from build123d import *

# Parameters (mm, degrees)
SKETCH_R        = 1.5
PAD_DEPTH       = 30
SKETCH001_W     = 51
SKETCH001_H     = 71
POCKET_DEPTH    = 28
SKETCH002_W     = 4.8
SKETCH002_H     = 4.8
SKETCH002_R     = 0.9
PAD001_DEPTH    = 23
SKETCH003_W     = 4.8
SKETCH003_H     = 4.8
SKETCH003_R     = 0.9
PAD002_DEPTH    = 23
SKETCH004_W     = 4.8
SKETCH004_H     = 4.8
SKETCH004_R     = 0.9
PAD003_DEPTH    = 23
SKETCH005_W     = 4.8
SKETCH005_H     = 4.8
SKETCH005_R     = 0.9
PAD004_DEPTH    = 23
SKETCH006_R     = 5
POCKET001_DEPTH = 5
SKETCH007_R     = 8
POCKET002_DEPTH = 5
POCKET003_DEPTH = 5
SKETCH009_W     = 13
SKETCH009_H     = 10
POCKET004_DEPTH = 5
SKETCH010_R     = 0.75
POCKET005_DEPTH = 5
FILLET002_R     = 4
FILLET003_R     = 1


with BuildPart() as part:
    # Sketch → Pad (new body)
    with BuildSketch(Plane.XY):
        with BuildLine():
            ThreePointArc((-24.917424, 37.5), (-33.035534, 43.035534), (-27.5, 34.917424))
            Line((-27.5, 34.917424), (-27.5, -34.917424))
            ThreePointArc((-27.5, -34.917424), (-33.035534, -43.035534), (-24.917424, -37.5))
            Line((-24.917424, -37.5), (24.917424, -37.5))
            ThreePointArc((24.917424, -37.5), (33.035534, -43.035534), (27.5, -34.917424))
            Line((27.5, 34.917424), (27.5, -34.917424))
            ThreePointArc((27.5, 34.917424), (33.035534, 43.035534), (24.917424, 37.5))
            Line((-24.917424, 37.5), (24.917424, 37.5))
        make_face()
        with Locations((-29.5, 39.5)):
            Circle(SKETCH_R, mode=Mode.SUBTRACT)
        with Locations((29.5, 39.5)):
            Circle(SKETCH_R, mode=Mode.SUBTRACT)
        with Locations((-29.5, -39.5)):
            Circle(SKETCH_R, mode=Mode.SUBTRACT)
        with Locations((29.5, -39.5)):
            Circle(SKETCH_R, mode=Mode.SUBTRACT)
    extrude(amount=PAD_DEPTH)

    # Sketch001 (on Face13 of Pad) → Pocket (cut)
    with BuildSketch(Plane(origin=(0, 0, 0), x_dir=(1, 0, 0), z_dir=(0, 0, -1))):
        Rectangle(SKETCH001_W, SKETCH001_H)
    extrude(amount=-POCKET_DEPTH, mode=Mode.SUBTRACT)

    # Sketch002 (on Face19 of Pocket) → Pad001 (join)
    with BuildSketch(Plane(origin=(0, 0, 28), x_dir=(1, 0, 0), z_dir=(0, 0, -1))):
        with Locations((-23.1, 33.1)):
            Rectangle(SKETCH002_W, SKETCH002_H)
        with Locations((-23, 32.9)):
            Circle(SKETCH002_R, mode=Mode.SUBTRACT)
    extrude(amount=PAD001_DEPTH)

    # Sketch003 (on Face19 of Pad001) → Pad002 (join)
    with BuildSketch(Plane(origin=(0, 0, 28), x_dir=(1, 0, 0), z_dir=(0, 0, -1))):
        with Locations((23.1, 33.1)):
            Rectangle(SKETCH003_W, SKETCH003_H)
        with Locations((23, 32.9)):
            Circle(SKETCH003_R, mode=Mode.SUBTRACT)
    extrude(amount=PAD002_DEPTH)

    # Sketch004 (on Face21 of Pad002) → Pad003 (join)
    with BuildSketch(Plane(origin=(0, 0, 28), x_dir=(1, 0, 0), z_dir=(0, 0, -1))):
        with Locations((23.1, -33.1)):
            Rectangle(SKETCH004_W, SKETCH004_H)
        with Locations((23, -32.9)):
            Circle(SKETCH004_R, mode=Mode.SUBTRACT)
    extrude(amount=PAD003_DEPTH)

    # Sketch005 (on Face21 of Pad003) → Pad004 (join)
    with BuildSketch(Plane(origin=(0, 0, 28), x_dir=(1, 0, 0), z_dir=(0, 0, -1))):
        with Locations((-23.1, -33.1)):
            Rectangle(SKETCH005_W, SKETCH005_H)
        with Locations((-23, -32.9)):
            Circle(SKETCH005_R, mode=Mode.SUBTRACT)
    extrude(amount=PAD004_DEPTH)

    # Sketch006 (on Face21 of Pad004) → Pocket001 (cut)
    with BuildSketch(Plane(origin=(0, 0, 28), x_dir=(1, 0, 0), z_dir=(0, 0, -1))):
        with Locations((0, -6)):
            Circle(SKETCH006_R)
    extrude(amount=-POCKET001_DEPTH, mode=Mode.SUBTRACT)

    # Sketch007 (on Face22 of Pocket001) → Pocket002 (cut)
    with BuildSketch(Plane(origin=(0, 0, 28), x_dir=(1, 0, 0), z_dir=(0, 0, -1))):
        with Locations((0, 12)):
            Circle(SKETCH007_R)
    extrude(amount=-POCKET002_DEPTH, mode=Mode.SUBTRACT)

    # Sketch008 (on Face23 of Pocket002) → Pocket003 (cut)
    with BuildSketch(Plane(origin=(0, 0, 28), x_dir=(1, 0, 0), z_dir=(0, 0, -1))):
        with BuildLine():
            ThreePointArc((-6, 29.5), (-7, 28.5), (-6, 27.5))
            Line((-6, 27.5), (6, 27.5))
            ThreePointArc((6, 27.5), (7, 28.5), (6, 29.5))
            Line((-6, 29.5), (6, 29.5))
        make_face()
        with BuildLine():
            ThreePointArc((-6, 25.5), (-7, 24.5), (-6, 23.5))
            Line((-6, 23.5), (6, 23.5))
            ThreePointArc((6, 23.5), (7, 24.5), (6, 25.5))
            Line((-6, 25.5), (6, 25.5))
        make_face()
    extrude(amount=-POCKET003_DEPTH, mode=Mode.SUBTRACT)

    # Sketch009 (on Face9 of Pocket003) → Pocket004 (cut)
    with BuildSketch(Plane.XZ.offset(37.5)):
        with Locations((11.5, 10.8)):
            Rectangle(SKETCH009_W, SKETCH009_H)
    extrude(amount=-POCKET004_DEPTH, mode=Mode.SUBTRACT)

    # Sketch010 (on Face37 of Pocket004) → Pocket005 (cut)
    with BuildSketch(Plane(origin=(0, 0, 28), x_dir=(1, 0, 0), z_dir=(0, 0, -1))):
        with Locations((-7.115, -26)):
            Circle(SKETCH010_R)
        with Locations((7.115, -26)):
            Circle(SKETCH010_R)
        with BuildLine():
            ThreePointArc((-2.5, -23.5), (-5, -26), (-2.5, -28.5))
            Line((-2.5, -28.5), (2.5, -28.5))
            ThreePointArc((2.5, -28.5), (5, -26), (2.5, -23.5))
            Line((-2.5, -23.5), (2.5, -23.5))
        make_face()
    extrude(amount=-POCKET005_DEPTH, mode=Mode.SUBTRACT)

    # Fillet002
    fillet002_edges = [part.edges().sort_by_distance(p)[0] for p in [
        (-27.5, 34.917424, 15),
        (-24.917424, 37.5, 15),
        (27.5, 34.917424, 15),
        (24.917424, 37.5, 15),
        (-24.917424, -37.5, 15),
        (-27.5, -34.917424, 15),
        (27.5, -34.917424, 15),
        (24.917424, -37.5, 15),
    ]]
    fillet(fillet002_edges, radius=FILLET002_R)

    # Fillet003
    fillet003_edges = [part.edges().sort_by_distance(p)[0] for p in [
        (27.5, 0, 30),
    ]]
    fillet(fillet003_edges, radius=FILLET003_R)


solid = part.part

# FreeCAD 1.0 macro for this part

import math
import FreeCAD as App
import Part
import Sketcher
from FreeCAD import Vector


def edges_at(feature, points):
    """Names of the edges that pass closest to the given points."""
    edges = feature.Shape.Edges
    near = lambda p: min(range(len(edges)), key=lambda i: edges[i].distToShape(Part.Vertex(*p))[0])
    return sorted({f"Edge{near(p) + 1}" for p in points})

doc = App.newDocument("Part")
params = doc.addObject("Spreadsheet::Sheet", "Params")
for row, (alias, value) in enumerate([
    ("sketch1_diameter", "3 mm"),
    ("sketch1_radius", "5 mm"),
    ("sketch1_width", "2 mm"),
    ("sketch1_height", "2 mm"),
    ("pad1_length", "30 mm"),
    ("sketch2_width", "51 mm"),
    ("sketch2_height", "71 mm"),
    ("pocket1_length", "28 mm"),
    ("sketch3_diameter", "1.8 mm"),
    ("sketch3_width", "4.8 mm"),
    ("pad2_length", "23 mm"),
    ("sketch4_diameter", "1.8 mm"),
    ("sketch4_width", "4.8 mm"),
    ("pad3_length", "23 mm"),
    ("sketch5_diameter", "1.8 mm"),
    ("sketch5_width", "4.8 mm"),
    ("pad4_length", "23 mm"),
    ("sketch6_diameter", "1.8 mm"),
    ("sketch6_width", "4.8 mm"),
    ("pad5_length", "23 mm"),
    ("sketch7_diameter", "10 mm"),
    ("pocket2_length", "5 mm"),
    ("sketch8_diameter", "16 mm"),
    ("pocket3_length", "5 mm"),
    ("sketch9_radius", "1 mm"),
    ("sketch9_width", "12 mm"),
    ("pocket4_length", "5 mm"),
    ("sketch10_width", "13 mm"),
    ("sketch10_height", "10 mm"),
    ("pocket5_length", "5 mm"),
    ("sketch11_diameter", "1.5 mm"),
    ("sketch11_radius", "2.5 mm"),
    ("sketch11_width", "5 mm"),
    ("pocket6_length", "5 mm"),
    ("fillet_radius", "4 mm"),
    ("fillet2_radius", "1 mm"),
], start=1):
    params.set(f"A{row}", alias)
    params.set(f"B{row}", "=" + value)
    params.setAlias(f"B{row}", alias)

body = doc.addObject("PartDesign::Body", "Body")

sketch1 = body.newObject("Sketcher::SketchObject", "Sketch")
sketch1.AttachmentSupport = (doc.getObject("XY_Plane"), [""])
sketch1.MapMode = "FlatFace"
sketch1.addGeometry([
    Part.ArcOfCircle(Part.Circle(Vector(-29.5, 39.5, 0), Vector(0, 0, 1), 5), math.radians(-23.578177), math.radians(293.578177)),
    Part.LineSegment(Vector(-27.5, 34.917424, 0), Vector(-27.5, -34.917424, 0)),
    Part.ArcOfCircle(Part.Circle(Vector(-29.5, -39.5, 0), Vector(0, 0, 1), 5), math.radians(66.421823), math.radians(383.578177)),
    Part.LineSegment(Vector(-24.917424, -37.5, 0), Vector(24.917424, -37.5, 0)),
    Part.ArcOfCircle(Part.Circle(Vector(29.5, -39.5, 0), Vector(0, 0, 1), 5), math.radians(156.421823), math.radians(473.578177)),
    Part.LineSegment(Vector(27.5, -34.917424, 0), Vector(27.5, 34.917424, 0)),
    Part.ArcOfCircle(Part.Circle(Vector(29.5, 39.5, 0), Vector(0, 0, 1), 5), math.radians(-113.578177), math.radians(203.578177)),
    Part.LineSegment(Vector(24.917424, 37.5, 0), Vector(-24.917424, 37.5, 0)),
    Part.Circle(Vector(-29.5, -39.5, 0), Vector(0, 0, 1), 1.5),
    Part.Circle(Vector(29.5, -39.5, 0), Vector(0, 0, 1), 1.5),
    Part.Circle(Vector(-29.5, 39.5, 0), Vector(0, 0, 1), 1.5),
    Part.Circle(Vector(29.5, 39.5, 0), Vector(0, 0, 1), 1.5),
], False)
sketch1.addConstraint([
    Sketcher.Constraint("Coincident", 0, 2, 1, 1),
    Sketcher.Constraint("Coincident", 1, 2, 2, 1),
    Sketcher.Constraint("Coincident", 2, 2, 3, 1),
    Sketcher.Constraint("Coincident", 3, 2, 4, 1),
    Sketcher.Constraint("Coincident", 4, 2, 5, 1),
    Sketcher.Constraint("Coincident", 5, 2, 6, 1),
    Sketcher.Constraint("Coincident", 6, 2, 7, 1),
    Sketcher.Constraint("Coincident", 7, 2, 0, 1),
    Sketcher.Constraint("Vertical", 1),
    Sketcher.Constraint("Horizontal", 3),
    Sketcher.Constraint("Vertical", 5),
    Sketcher.Constraint("Horizontal", 7),
    Sketcher.Constraint("Coincident", 8, 3, 2, 3),
    Sketcher.Constraint("Coincident", 9, 3, 4, 3),
    Sketcher.Constraint("Coincident", 10, 3, 0, 3),
    Sketcher.Constraint("Coincident", 11, 3, 6, 3),
    Sketcher.Constraint("Equal", 0, 2),
    Sketcher.Constraint("Equal", 2, 4),
    Sketcher.Constraint("Equal", 4, 6),
    Sketcher.Constraint("Equal", 8, 9),
    Sketcher.Constraint("Equal", 9, 10),
    Sketcher.Constraint("Equal", 10, 11),
    Sketcher.Constraint("Symmetric", 0, 3, 4, 3, -1, 1),
    Sketcher.Constraint("Symmetric", 2, 3, 6, 3, -1, 1),
    Sketcher.Constraint("Symmetric", 2, 3, 4, 3, -2),
    Sketcher.Constraint("Horizontal", 1, 2, 4, 2),
    Sketcher.Constraint("Vertical", 3, 2, 6, 2),
    Sketcher.Constraint("Diameter", 8, 3.0),
    Sketcher.Constraint("Radius", 0, 5.0),
    Sketcher.Constraint("DistanceY", 2, 3, 0, 3, 79.0),
    Sketcher.Constraint("DistanceX", 2, 3, 4, 3, 59.0),
    Sketcher.Constraint("DistanceX", 0, 3, 0, 2, 2.0),
    Sketcher.Constraint("DistanceY", 2, 3, 2, 2, 2.0),
])
sketch1.setExpression("Constraints[27]", "Params.sketch1_diameter")
sketch1.setExpression("Constraints[28]", "Params.sketch1_radius")
sketch1.setExpression("Constraints[31]", "Params.sketch1_width")
sketch1.setExpression("Constraints[32]", "Params.sketch1_height")
pad1 = body.newObject("PartDesign::Pad", "Pad")
pad1.Profile = sketch1
pad1.setExpression("Length", "Params.pad1_length")

sketch2 = body.newObject("Sketcher::SketchObject", "Sketch001")
sketch2.AttachmentSupport = (doc.getObject("XY_Plane"), [""])
sketch2.MapMode = "FlatFace"
sketch2.addGeometry([
    Part.LineSegment(Vector(-25.5, -35.5, 0), Vector(-25.5, 35.5, 0)),
    Part.LineSegment(Vector(-25.5, 35.5, 0), Vector(25.5, 35.5, 0)),
    Part.LineSegment(Vector(25.5, 35.5, 0), Vector(25.5, -35.5, 0)),
    Part.LineSegment(Vector(25.5, -35.5, 0), Vector(-25.5, -35.5, 0)),
], False)
sketch2.addConstraint([
    Sketcher.Constraint("Coincident", 0, 2, 1, 1),
    Sketcher.Constraint("Coincident", 1, 2, 2, 1),
    Sketcher.Constraint("Coincident", 2, 2, 3, 1),
    Sketcher.Constraint("Coincident", 3, 2, 0, 1),
    Sketcher.Constraint("Vertical", 0),
    Sketcher.Constraint("Horizontal", 1),
    Sketcher.Constraint("Vertical", 2),
    Sketcher.Constraint("Horizontal", 3),
    Sketcher.Constraint("Symmetric", 0, 2, 2, 2, -1, 1),
    Sketcher.Constraint("DistanceX", 1, 1, 1, 2, 51.0),
    Sketcher.Constraint("DistanceY", 0, 1, 0, 2, 71.0),
])
sketch2.setExpression("Constraints[9]", "Params.sketch2_width")
sketch2.setExpression("Constraints[10]", "Params.sketch2_height")
pocket1 = body.newObject("PartDesign::Pocket", "Pocket")
pocket1.Profile = sketch2
pocket1.setExpression("Length", "Params.pocket1_length")
pocket1.Reversed = True

sketch3 = body.newObject("Sketcher::SketchObject", "Sketch002")
sketch3.AttachmentSupport = (doc.getObject("XY_Plane"), [""])
sketch3.MapMode = "FlatFace"
sketch3.AttachmentOffset = App.Placement(Vector(0, 0, 28), App.Rotation())
sketch3.addGeometry([
    Part.LineSegment(Vector(-25.5, -35.5, 0), Vector(-25.5, -30.7, 0)),
    Part.LineSegment(Vector(-25.5, -30.7, 0), Vector(-20.7, -30.7, 0)),
    Part.LineSegment(Vector(-20.7, -30.7, 0), Vector(-20.7, -35.5, 0)),
    Part.LineSegment(Vector(-20.7, -35.5, 0), Vector(-25.5, -35.5, 0)),
    Part.Circle(Vector(-23, -32.9, 0), Vector(0, 0, 1), 0.9),
], False)
sketch3.addConstraint([
    Sketcher.Constraint("Coincident", 0, 2, 1, 1),
    Sketcher.Constraint("Coincident", 1, 2, 2, 1),
    Sketcher.Constraint("Coincident", 2, 2, 3, 1),
    Sketcher.Constraint("Coincident", 3, 2, 0, 1),
    Sketcher.Constraint("Vertical", 0),
    Sketcher.Constraint("Horizontal", 1),
    Sketcher.Constraint("Vertical", 2),
    Sketcher.Constraint("Horizontal", 3),
    Sketcher.Constraint("Equal", 3, 0),
    Sketcher.Constraint("Diameter", 4, 1.8),
    Sketcher.Constraint("DistanceX", 1, 1, 1, 2, 4.8),
    Sketcher.Constraint("DistanceX", 4, 3, -1, 1, 23.0),
    Sketcher.Constraint("DistanceY", 4, 3, -1, 1, 32.9),
    Sketcher.Constraint("DistanceX", 0, 2, -1, 1, 25.5),
    Sketcher.Constraint("DistanceY", 0, 2, -1, 1, 30.7),
])
sketch3.setExpression("Constraints[9]", "Params.sketch3_diameter")
sketch3.setExpression("Constraints[10]", "Params.sketch3_width")
pad2 = body.newObject("PartDesign::Pad", "Pad001")
pad2.Profile = sketch3
pad2.setExpression("Length", "Params.pad2_length")
pad2.Reversed = True

sketch4 = body.newObject("Sketcher::SketchObject", "Sketch003")
sketch4.AttachmentSupport = (doc.getObject("XY_Plane"), [""])
sketch4.MapMode = "FlatFace"
sketch4.AttachmentOffset = App.Placement(Vector(0, 0, 28), App.Rotation())
sketch4.addGeometry([
    Part.LineSegment(Vector(20.7, -35.5, 0), Vector(20.7, -30.7, 0)),
    Part.LineSegment(Vector(20.7, -30.7, 0), Vector(25.5, -30.7, 0)),
    Part.LineSegment(Vector(25.5, -30.7, 0), Vector(25.5, -35.5, 0)),
    Part.LineSegment(Vector(25.5, -35.5, 0), Vector(20.7, -35.5, 0)),
    Part.Circle(Vector(23, -32.9, 0), Vector(0, 0, 1), 0.9),
], False)
sketch4.addConstraint([
    Sketcher.Constraint("Coincident", 0, 2, 1, 1),
    Sketcher.Constraint("Coincident", 1, 2, 2, 1),
    Sketcher.Constraint("Coincident", 2, 2, 3, 1),
    Sketcher.Constraint("Coincident", 3, 2, 0, 1),
    Sketcher.Constraint("Vertical", 0),
    Sketcher.Constraint("Horizontal", 1),
    Sketcher.Constraint("Vertical", 2),
    Sketcher.Constraint("Horizontal", 3),
    Sketcher.Constraint("Equal", 3, 0),
    Sketcher.Constraint("Diameter", 4, 1.8),
    Sketcher.Constraint("DistanceX", 1, 1, 1, 2, 4.8),
    Sketcher.Constraint("DistanceX", -1, 1, 4, 3, 23.0),
    Sketcher.Constraint("DistanceY", 4, 3, -1, 1, 32.9),
    Sketcher.Constraint("DistanceX", -1, 1, 0, 2, 20.7),
    Sketcher.Constraint("DistanceY", 0, 2, -1, 1, 30.7),
])
sketch4.setExpression("Constraints[9]", "Params.sketch4_diameter")
sketch4.setExpression("Constraints[10]", "Params.sketch4_width")
pad3 = body.newObject("PartDesign::Pad", "Pad002")
pad3.Profile = sketch4
pad3.setExpression("Length", "Params.pad3_length")
pad3.Reversed = True

sketch5 = body.newObject("Sketcher::SketchObject", "Sketch004")
sketch5.AttachmentSupport = (doc.getObject("XY_Plane"), [""])
sketch5.MapMode = "FlatFace"
sketch5.AttachmentOffset = App.Placement(Vector(0, 0, 28), App.Rotation())
sketch5.addGeometry([
    Part.LineSegment(Vector(20.7, 30.7, 0), Vector(20.7, 35.5, 0)),
    Part.LineSegment(Vector(20.7, 35.5, 0), Vector(25.5, 35.5, 0)),
    Part.LineSegment(Vector(25.5, 35.5, 0), Vector(25.5, 30.7, 0)),
    Part.LineSegment(Vector(25.5, 30.7, 0), Vector(20.7, 30.7, 0)),
    Part.Circle(Vector(23, 32.9, 0), Vector(0, 0, 1), 0.9),
], False)
sketch5.addConstraint([
    Sketcher.Constraint("Coincident", 0, 2, 1, 1),
    Sketcher.Constraint("Coincident", 1, 2, 2, 1),
    Sketcher.Constraint("Coincident", 2, 2, 3, 1),
    Sketcher.Constraint("Coincident", 3, 2, 0, 1),
    Sketcher.Constraint("Vertical", 0),
    Sketcher.Constraint("Horizontal", 1),
    Sketcher.Constraint("Vertical", 2),
    Sketcher.Constraint("Horizontal", 3),
    Sketcher.Constraint("Equal", 3, 0),
    Sketcher.Constraint("Diameter", 4, 1.8),
    Sketcher.Constraint("DistanceX", 1, 1, 1, 2, 4.8),
    Sketcher.Constraint("DistanceX", -1, 1, 4, 3, 23.0),
    Sketcher.Constraint("DistanceY", -1, 1, 4, 3, 32.9),
    Sketcher.Constraint("DistanceX", -1, 1, 0, 2, 20.7),
    Sketcher.Constraint("DistanceY", -1, 1, 0, 2, 35.5),
])
sketch5.setExpression("Constraints[9]", "Params.sketch5_diameter")
sketch5.setExpression("Constraints[10]", "Params.sketch5_width")
pad4 = body.newObject("PartDesign::Pad", "Pad003")
pad4.Profile = sketch5
pad4.setExpression("Length", "Params.pad4_length")
pad4.Reversed = True

sketch6 = body.newObject("Sketcher::SketchObject", "Sketch005")
sketch6.AttachmentSupport = (doc.getObject("XY_Plane"), [""])
sketch6.MapMode = "FlatFace"
sketch6.AttachmentOffset = App.Placement(Vector(0, 0, 28), App.Rotation())
sketch6.addGeometry([
    Part.LineSegment(Vector(-25.5, 30.7, 0), Vector(-25.5, 35.5, 0)),
    Part.LineSegment(Vector(-25.5, 35.5, 0), Vector(-20.7, 35.5, 0)),
    Part.LineSegment(Vector(-20.7, 35.5, 0), Vector(-20.7, 30.7, 0)),
    Part.LineSegment(Vector(-20.7, 30.7, 0), Vector(-25.5, 30.7, 0)),
    Part.Circle(Vector(-23, 32.9, 0), Vector(0, 0, 1), 0.9),
], False)
sketch6.addConstraint([
    Sketcher.Constraint("Coincident", 0, 2, 1, 1),
    Sketcher.Constraint("Coincident", 1, 2, 2, 1),
    Sketcher.Constraint("Coincident", 2, 2, 3, 1),
    Sketcher.Constraint("Coincident", 3, 2, 0, 1),
    Sketcher.Constraint("Vertical", 0),
    Sketcher.Constraint("Horizontal", 1),
    Sketcher.Constraint("Vertical", 2),
    Sketcher.Constraint("Horizontal", 3),
    Sketcher.Constraint("Equal", 3, 0),
    Sketcher.Constraint("Diameter", 4, 1.8),
    Sketcher.Constraint("DistanceX", 1, 1, 1, 2, 4.8),
    Sketcher.Constraint("DistanceX", 4, 3, -1, 1, 23.0),
    Sketcher.Constraint("DistanceY", -1, 1, 4, 3, 32.9),
    Sketcher.Constraint("DistanceX", 0, 2, -1, 1, 25.5),
    Sketcher.Constraint("DistanceY", -1, 1, 0, 2, 35.5),
])
sketch6.setExpression("Constraints[9]", "Params.sketch6_diameter")
sketch6.setExpression("Constraints[10]", "Params.sketch6_width")
pad5 = body.newObject("PartDesign::Pad", "Pad004")
pad5.Profile = sketch6
pad5.setExpression("Length", "Params.pad5_length")
pad5.Reversed = True

sketch7 = body.newObject("Sketcher::SketchObject", "Sketch006")
sketch7.AttachmentSupport = (doc.getObject("XY_Plane"), [""])
sketch7.MapMode = "FlatFace"
sketch7.AttachmentOffset = App.Placement(Vector(0, 0, 28), App.Rotation())
sketch7.addGeometry(Part.Circle(Vector(0, 6, 0), Vector(0, 0, 1), 5), False)
sketch7.addConstraint([
    Sketcher.Constraint("PointOnObject", 0, 3, -2),
    Sketcher.Constraint("Diameter", 0, 10.0),
    Sketcher.Constraint("DistanceY", -1, 1, 0, 3, 6.0),
])
sketch7.setExpression("Constraints[1]", "Params.sketch7_diameter")
pocket2 = body.newObject("PartDesign::Pocket", "Pocket001")
pocket2.Profile = sketch7
pocket2.setExpression("Length", "Params.pocket2_length")
pocket2.Reversed = True

sketch8 = body.newObject("Sketcher::SketchObject", "Sketch007")
sketch8.AttachmentSupport = (doc.getObject("XY_Plane"), [""])
sketch8.MapMode = "FlatFace"
sketch8.AttachmentOffset = App.Placement(Vector(0, 0, 28), App.Rotation())
sketch8.addGeometry(Part.Circle(Vector(0, -12, 0), Vector(0, 0, 1), 8), False)
sketch8.addConstraint([
    Sketcher.Constraint("PointOnObject", 0, 3, -2),
    Sketcher.Constraint("Diameter", 0, 16.0),
    Sketcher.Constraint("DistanceY", 0, 3, -1, 1, 12.0),
])
sketch8.setExpression("Constraints[1]", "Params.sketch8_diameter")
pocket3 = body.newObject("PartDesign::Pocket", "Pocket002")
pocket3.Profile = sketch8
pocket3.setExpression("Length", "Params.pocket3_length")
pocket3.Reversed = True

sketch9 = body.newObject("Sketcher::SketchObject", "Sketch008")
sketch9.AttachmentSupport = (doc.getObject("XY_Plane"), [""])
sketch9.MapMode = "FlatFace"
sketch9.AttachmentOffset = App.Placement(Vector(0, 0, 28), App.Rotation())
sketch9.addGeometry([
    Part.ArcOfCircle(Part.Circle(Vector(-6, -28.5, 0), Vector(0, 0, 1), 1), math.radians(90), math.radians(270)),
    Part.LineSegment(Vector(-6, -27.5, 0), Vector(6, -27.5, 0)),
    Part.ArcOfCircle(Part.Circle(Vector(6, -28.5, 0), Vector(0, 0, 1), 1), math.radians(-90), math.radians(90)),
    Part.LineSegment(Vector(6, -29.5, 0), Vector(-6, -29.5, 0)),
    Part.ArcOfCircle(Part.Circle(Vector(-6, -24.5, 0), Vector(0, 0, 1), 1), math.radians(90), math.radians(270)),
    Part.LineSegment(Vector(-6, -23.5, 0), Vector(6, -23.5, 0)),
    Part.ArcOfCircle(Part.Circle(Vector(6, -24.5, 0), Vector(0, 0, 1), 1), math.radians(-90), math.radians(90)),
    Part.LineSegment(Vector(6, -25.5, 0), Vector(-6, -25.5, 0)),
], False)
sketch9.addConstraint([
    Sketcher.Constraint("Tangent", 0, 1, 1, 1),
    Sketcher.Constraint("Tangent", 1, 2, 2, 2),
    Sketcher.Constraint("Tangent", 2, 1, 3, 1),
    Sketcher.Constraint("Tangent", 3, 2, 0, 2),
    Sketcher.Constraint("Tangent", 4, 1, 5, 1),
    Sketcher.Constraint("Tangent", 5, 2, 6, 2),
    Sketcher.Constraint("Tangent", 6, 1, 7, 1),
    Sketcher.Constraint("Tangent", 7, 2, 4, 2),
    Sketcher.Constraint("Horizontal", 1),
    Sketcher.Constraint("Horizontal", 3),
    Sketcher.Constraint("Horizontal", 5),
    Sketcher.Constraint("Horizontal", 7),
    Sketcher.Constraint("Equal", 2, 4),
    Sketcher.Constraint("Vertical", 0, 3, 4, 3),
    Sketcher.Constraint("Vertical", 2, 3, 6, 3),
    Sketcher.Constraint("Radius", 0, 1.0),
    Sketcher.Constraint("DistanceX", 1, 1, 1, 2, 12.0),
    Sketcher.Constraint("DistanceX", 0, 3, -1, 1, 6.0),
    Sketcher.Constraint("DistanceY", 0, 3, 4, 3, 4.0),
    Sketcher.Constraint("DistanceY", 0, 3, -1, 1, 28.5),
])
sketch9.setExpression("Constraints[15]", "Params.sketch9_radius")
sketch9.setExpression("Constraints[16]", "Params.sketch9_width")
pocket4 = body.newObject("PartDesign::Pocket", "Pocket003")
pocket4.Profile = sketch9
pocket4.setExpression("Length", "Params.pocket4_length")
pocket4.Reversed = True

sketch10 = body.newObject("Sketcher::SketchObject", "Sketch009")
sketch10.AttachmentSupport = (doc.getObject("XZ_Plane"), [""])
sketch10.MapMode = "FlatFace"
sketch10.AttachmentOffset = App.Placement(Vector(0, 0, 37.5), App.Rotation())
sketch10.addGeometry([
    Part.LineSegment(Vector(5, 15.8, 0), Vector(5, 5.8, 0)),
    Part.LineSegment(Vector(5, 5.8, 0), Vector(18, 5.8, 0)),
    Part.LineSegment(Vector(18, 5.8, 0), Vector(18, 15.8, 0)),
    Part.LineSegment(Vector(18, 15.8, 0), Vector(5, 15.8, 0)),
], False)
sketch10.addConstraint([
    Sketcher.Constraint("Coincident", 0, 2, 1, 1),
    Sketcher.Constraint("Coincident", 1, 2, 2, 1),
    Sketcher.Constraint("Coincident", 2, 2, 3, 1),
    Sketcher.Constraint("Coincident", 3, 2, 0, 1),
    Sketcher.Constraint("Vertical", 0),
    Sketcher.Constraint("Horizontal", 1),
    Sketcher.Constraint("Vertical", 2),
    Sketcher.Constraint("Horizontal", 3),
    Sketcher.Constraint("DistanceX", 1, 1, 1, 2, 13.0),
    Sketcher.Constraint("DistanceY", 0, 2, 0, 1, 10.0),
    Sketcher.Constraint("DistanceX", -1, 1, 0, 2, 5.0),
    Sketcher.Constraint("DistanceY", -1, 1, 0, 2, 5.8),
])
sketch10.setExpression("Constraints[8]", "Params.sketch10_width")
sketch10.setExpression("Constraints[9]", "Params.sketch10_height")
pocket5 = body.newObject("PartDesign::Pocket", "Pocket004")
pocket5.Profile = sketch10
pocket5.setExpression("Length", "Params.pocket5_length")

sketch11 = body.newObject("Sketcher::SketchObject", "Sketch010")
sketch11.AttachmentSupport = (doc.getObject("XY_Plane"), [""])
sketch11.MapMode = "FlatFace"
sketch11.AttachmentOffset = App.Placement(Vector(0, 0, 28), App.Rotation())
sketch11.addGeometry([
    Part.Circle(Vector(-7.115, 26, 0), Vector(0, 0, 1), 0.75),
    Part.Circle(Vector(7.115, 26, 0), Vector(0, 0, 1), 0.75),
    Part.ArcOfCircle(Part.Circle(Vector(-2.5, 26, 0), Vector(0, 0, 1), 2.5), math.radians(90), math.radians(270)),
    Part.LineSegment(Vector(-2.5, 28.5, 0), Vector(2.5, 28.5, 0)),
    Part.ArcOfCircle(Part.Circle(Vector(2.5, 26, 0), Vector(0, 0, 1), 2.5), math.radians(-90), math.radians(90)),
    Part.LineSegment(Vector(2.5, 23.5, 0), Vector(-2.5, 23.5, 0)),
], False)
sketch11.addConstraint([
    Sketcher.Constraint("Tangent", 2, 1, 3, 1),
    Sketcher.Constraint("Tangent", 3, 2, 4, 2),
    Sketcher.Constraint("Tangent", 4, 1, 5, 1),
    Sketcher.Constraint("Tangent", 5, 2, 2, 2),
    Sketcher.Constraint("Horizontal", 3),
    Sketcher.Constraint("Horizontal", 5),
    Sketcher.Constraint("Equal", 0, 1),
    Sketcher.Constraint("Symmetric", 0, 3, 1, 3, -2),
    Sketcher.Constraint("Horizontal", 1, 3, 2, 3),
    Sketcher.Constraint("Diameter", 0, 1.5),
    Sketcher.Constraint("Radius", 2, 2.5),
    Sketcher.Constraint("DistanceX", 3, 1, 3, 2, 5.0),
    Sketcher.Constraint("DistanceY", -1, 1, 0, 3, 26.0),
    Sketcher.Constraint("DistanceX", 2, 3, -1, 1, 2.5),
    Sketcher.Constraint("DistanceX", 0, 3, 1, 3, 14.23),
])
sketch11.setExpression("Constraints[9]", "Params.sketch11_diameter")
sketch11.setExpression("Constraints[10]", "Params.sketch11_radius")
sketch11.setExpression("Constraints[11]", "Params.sketch11_width")
pocket6 = body.newObject("PartDesign::Pocket", "Pocket005")
pocket6.Profile = sketch11
pocket6.setExpression("Length", "Params.pocket6_length")
pocket6.Reversed = True
doc.recompute()

fillet = body.newObject("PartDesign::Fillet", "Fillet")
fillet.Base = (pocket6, edges_at(pocket6, [
    (-27.5, 34.917, 15),
    (-24.917, 37.5, 15),
    (27.5, 34.917, 15),
    (24.917, 37.5, 15),
    (-24.917, -37.5, 15),
    (-27.5, -34.917, 15),
    (27.5, -34.917, 15),
    (24.917, -37.5, 15),
]))
fillet.setExpression("Radius", "Params.fillet_radius")
doc.recompute()

fillet2 = body.newObject("PartDesign::Fillet", "Fillet001")
fillet2.Base = (fillet, edges_at(fillet, [(27.5, 0, 30)]))
fillet2.setExpression("Radius", "Params.fillet2_radius")

doc.recompute()
